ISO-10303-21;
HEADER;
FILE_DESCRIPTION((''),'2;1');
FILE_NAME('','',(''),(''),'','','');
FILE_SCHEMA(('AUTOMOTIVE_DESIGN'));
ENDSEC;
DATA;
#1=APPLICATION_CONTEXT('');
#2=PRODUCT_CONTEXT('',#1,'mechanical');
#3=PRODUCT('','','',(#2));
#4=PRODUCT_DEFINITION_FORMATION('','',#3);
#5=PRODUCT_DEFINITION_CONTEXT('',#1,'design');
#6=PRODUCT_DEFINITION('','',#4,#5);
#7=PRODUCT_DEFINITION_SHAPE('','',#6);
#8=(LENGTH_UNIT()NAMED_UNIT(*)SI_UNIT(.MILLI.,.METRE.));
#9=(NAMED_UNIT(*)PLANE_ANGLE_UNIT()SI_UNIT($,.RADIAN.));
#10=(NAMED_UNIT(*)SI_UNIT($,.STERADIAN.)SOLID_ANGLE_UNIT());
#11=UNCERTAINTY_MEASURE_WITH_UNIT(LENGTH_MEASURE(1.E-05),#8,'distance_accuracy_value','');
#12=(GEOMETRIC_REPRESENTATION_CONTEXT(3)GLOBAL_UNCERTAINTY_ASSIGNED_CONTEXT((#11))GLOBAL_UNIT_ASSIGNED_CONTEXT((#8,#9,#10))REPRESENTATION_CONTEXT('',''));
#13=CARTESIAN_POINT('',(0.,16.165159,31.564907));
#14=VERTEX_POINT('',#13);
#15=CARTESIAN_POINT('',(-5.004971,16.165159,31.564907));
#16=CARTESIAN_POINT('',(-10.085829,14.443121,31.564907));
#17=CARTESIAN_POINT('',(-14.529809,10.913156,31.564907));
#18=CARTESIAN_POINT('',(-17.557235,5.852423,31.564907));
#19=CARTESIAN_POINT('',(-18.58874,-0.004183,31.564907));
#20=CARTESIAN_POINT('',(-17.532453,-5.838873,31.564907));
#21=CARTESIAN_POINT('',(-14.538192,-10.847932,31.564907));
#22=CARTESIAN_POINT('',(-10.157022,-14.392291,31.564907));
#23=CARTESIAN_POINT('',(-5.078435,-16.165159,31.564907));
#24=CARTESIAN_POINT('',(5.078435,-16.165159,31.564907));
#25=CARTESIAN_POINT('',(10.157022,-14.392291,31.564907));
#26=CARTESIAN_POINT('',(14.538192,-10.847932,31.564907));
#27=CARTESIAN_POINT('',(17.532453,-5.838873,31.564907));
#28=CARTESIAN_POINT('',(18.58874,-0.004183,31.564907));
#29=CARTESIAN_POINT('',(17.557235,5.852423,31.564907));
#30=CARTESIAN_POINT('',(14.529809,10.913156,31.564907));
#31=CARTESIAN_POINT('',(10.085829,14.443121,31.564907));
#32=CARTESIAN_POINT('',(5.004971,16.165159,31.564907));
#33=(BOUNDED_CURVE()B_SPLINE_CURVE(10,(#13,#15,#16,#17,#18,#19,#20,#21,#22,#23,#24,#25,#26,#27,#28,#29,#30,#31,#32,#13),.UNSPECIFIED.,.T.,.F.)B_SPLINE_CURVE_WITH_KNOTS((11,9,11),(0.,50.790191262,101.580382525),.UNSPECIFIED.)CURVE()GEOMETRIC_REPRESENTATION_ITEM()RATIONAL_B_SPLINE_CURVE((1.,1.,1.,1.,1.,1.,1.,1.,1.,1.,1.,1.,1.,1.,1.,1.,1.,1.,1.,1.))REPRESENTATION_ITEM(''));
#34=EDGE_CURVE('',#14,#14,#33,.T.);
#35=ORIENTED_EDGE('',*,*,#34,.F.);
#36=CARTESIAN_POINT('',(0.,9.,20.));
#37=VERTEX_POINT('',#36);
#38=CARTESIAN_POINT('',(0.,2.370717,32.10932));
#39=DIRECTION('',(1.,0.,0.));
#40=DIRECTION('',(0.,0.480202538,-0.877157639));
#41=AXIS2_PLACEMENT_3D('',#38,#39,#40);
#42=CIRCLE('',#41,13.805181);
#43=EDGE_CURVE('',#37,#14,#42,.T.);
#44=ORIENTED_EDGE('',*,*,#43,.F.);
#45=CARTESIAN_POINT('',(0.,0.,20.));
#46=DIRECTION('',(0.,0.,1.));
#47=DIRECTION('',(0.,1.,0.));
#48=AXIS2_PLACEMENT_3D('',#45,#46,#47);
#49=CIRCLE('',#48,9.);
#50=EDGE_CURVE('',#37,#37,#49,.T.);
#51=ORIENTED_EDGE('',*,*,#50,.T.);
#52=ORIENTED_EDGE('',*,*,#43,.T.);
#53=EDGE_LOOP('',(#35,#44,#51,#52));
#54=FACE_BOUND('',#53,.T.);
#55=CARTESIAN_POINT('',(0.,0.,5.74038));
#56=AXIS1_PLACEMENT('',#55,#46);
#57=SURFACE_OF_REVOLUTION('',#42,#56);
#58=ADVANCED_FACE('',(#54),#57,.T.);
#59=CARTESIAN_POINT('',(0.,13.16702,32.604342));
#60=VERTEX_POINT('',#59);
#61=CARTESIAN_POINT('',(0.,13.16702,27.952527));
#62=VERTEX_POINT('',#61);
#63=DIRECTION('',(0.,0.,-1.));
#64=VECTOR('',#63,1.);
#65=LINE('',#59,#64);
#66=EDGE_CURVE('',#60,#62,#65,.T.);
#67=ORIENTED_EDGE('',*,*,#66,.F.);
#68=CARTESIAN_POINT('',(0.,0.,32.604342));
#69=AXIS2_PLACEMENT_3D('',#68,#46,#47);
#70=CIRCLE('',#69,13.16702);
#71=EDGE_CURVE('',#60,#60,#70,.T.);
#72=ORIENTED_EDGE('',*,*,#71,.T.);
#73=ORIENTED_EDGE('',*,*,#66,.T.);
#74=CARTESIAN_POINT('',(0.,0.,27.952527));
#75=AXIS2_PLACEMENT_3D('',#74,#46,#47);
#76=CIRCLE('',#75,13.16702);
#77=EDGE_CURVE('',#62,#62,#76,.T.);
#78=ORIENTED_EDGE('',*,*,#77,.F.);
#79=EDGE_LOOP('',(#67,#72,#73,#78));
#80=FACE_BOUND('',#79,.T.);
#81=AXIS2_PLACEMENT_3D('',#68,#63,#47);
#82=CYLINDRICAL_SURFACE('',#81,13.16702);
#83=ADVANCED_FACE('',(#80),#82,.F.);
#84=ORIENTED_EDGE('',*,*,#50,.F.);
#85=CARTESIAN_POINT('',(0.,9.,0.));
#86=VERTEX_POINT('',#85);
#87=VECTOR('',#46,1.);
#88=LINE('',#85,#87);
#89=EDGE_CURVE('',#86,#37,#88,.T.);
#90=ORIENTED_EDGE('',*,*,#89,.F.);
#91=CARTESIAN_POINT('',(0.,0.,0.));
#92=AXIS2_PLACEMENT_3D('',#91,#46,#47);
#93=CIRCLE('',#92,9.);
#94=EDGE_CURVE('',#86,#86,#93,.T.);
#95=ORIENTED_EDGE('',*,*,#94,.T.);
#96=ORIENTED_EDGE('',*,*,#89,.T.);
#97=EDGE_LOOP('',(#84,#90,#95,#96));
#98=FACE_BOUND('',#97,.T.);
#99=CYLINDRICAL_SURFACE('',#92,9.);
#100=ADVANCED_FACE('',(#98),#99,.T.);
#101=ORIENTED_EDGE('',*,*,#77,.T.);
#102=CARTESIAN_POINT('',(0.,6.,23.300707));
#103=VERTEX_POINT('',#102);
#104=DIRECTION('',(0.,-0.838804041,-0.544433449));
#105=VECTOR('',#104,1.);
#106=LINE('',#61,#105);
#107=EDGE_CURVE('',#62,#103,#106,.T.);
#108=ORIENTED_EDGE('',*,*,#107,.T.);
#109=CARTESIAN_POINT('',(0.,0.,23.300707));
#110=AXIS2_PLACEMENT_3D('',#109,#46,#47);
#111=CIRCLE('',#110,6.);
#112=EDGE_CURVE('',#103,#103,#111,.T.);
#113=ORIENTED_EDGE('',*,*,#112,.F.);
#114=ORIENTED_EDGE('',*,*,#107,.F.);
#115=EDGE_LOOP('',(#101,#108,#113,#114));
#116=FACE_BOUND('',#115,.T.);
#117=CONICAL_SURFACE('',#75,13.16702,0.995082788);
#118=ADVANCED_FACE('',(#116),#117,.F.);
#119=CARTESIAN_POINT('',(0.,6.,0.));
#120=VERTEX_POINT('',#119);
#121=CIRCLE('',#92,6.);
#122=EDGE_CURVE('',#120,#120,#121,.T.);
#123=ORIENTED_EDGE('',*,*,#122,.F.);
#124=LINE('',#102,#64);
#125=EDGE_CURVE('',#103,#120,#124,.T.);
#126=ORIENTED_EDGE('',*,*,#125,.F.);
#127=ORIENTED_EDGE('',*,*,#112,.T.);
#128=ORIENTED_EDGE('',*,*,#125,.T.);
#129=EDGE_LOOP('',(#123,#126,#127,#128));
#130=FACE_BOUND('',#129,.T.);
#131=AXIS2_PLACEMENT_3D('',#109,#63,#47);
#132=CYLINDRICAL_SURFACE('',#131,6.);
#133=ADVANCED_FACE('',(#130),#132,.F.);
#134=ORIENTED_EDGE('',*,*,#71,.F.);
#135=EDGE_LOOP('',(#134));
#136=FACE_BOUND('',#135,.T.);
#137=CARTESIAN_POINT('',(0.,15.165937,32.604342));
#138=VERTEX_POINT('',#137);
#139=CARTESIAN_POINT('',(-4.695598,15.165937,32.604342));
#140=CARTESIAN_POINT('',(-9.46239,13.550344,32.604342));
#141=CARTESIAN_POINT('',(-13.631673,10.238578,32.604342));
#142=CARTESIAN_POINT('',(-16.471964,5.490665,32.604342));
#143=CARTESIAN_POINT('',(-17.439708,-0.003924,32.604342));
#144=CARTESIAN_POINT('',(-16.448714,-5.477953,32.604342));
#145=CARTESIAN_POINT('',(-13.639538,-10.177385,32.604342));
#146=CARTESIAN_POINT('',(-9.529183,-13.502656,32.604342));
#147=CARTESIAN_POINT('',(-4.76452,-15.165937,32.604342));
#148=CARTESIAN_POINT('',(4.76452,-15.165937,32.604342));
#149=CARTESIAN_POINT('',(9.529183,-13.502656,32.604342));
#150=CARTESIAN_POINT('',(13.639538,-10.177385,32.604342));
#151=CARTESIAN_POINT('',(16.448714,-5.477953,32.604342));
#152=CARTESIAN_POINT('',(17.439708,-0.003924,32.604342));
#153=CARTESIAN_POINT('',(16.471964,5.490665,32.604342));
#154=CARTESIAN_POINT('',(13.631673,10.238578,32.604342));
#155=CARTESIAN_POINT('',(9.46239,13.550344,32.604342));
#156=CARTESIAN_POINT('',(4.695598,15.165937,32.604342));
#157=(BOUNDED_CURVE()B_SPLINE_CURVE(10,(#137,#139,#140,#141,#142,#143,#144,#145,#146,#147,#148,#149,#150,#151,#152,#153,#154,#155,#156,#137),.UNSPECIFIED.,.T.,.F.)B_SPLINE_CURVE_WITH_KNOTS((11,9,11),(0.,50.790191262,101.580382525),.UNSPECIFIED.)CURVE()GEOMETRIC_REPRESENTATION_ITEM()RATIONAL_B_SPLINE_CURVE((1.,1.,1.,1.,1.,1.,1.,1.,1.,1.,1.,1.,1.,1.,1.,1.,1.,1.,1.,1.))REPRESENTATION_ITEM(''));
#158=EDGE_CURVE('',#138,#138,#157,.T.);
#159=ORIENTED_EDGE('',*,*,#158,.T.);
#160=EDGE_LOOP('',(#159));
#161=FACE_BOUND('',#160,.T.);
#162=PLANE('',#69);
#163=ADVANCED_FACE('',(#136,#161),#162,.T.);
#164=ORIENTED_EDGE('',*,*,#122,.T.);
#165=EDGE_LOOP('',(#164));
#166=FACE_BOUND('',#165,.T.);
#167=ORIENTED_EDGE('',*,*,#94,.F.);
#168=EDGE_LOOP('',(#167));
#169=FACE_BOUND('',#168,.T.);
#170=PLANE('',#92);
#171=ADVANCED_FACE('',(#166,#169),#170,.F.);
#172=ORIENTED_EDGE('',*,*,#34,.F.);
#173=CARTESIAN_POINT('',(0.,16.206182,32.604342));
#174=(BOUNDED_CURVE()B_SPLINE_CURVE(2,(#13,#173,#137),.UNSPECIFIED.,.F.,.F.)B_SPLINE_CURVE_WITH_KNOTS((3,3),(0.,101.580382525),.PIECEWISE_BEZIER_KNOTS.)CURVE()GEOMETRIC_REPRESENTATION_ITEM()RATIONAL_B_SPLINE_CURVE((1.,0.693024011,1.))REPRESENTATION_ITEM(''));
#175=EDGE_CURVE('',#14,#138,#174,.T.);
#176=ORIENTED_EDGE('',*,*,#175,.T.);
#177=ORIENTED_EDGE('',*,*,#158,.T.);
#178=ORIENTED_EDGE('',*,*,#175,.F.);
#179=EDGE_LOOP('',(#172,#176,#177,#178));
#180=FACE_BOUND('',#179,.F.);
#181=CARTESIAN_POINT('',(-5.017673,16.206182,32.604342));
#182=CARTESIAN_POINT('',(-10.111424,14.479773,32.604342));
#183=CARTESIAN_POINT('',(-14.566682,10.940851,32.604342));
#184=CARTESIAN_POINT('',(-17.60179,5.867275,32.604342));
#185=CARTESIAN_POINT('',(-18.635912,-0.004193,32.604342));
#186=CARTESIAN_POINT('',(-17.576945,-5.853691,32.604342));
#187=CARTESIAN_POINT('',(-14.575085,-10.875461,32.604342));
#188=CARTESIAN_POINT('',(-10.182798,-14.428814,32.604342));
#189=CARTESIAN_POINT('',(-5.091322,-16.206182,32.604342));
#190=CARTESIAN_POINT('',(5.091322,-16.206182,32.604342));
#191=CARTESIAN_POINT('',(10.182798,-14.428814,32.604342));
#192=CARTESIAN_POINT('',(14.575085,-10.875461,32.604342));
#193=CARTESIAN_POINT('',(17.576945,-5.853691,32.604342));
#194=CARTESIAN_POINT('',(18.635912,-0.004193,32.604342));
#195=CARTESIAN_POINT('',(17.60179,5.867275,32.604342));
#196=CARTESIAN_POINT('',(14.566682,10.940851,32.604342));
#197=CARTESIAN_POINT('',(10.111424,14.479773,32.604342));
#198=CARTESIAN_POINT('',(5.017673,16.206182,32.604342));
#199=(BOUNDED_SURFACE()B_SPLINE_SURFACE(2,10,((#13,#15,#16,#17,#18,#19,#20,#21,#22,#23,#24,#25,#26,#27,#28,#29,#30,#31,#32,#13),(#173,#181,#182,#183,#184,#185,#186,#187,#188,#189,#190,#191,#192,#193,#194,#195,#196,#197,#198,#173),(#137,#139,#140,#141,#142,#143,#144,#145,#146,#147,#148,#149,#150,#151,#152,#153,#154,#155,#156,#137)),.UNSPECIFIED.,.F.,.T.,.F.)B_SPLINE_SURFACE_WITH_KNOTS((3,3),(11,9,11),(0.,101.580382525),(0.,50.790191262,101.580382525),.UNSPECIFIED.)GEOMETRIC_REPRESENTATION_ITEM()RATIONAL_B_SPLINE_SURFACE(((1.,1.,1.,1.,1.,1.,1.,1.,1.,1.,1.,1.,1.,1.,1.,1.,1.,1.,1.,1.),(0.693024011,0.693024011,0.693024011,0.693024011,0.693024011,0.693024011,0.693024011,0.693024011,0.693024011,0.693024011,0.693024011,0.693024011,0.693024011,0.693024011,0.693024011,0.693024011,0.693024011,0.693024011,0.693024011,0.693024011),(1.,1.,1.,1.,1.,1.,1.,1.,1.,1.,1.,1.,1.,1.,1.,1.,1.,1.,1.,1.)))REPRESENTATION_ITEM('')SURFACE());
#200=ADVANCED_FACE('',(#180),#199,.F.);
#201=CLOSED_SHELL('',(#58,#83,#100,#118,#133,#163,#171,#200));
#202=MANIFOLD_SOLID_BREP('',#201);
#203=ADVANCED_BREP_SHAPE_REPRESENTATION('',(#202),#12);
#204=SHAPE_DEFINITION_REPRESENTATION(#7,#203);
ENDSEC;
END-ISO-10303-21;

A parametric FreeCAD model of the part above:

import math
import FreeCAD as App
import Part
import Sketcher
from FreeCAD import Vector


def edges_at(feature, points):
    """Names of the edges that pass closest to the given points."""
    edges = feature.Shape.Edges
    near = lambda p: min(range(len(edges)), key=lambda i: edges[i].distToShape(Part.Vertex(*p))[0])
    return sorted({f"Edge{near(p) + 1}" for p in points})

doc = App.newDocument("Part")
body = doc.addObject("PartDesign::Body", "Body")

sketch1 = doc.addObject("Sketcher::SketchObject", "Sketch")
body.addObject(sketch1)
sketch1.AttachmentSupport = (doc.YZ_Plane, [""])
sketch1.MapMode = "FlatFace"
sketch1.addGeometry([
    Part.LineSegment(Vector(6, 0, 0), Vector(9, 0, 0)),
    Part.LineSegment(Vector(9, 0, 0), Vector(9, 20, 0)),
    Part.ArcOfCircle(Part.Circle(Vector(2.4, 32.1, 0), Vector(0, 0, 1), 13.8), math.radians(-61), math.radians(2)),
    Part.LineSegment(Vector(16.2, 32.6, 0), Vector(13.2, 32.6, 0)),
    Part.LineSegment(Vector(13.2, 32.6, 0), Vector(13.2, 28, 0)),
    Part.LineSegment(Vector(13.2, 28, 0), Vector(6, 23.3, 0)),
    Part.LineSegment(Vector(6, 23.3, 0), Vector(6, 0, 0)),
], False)
sketch1.addConstraint([
    Sketcher.Constraint("Coincident", 0, 2, 1, 1),
    Sketcher.Constraint("Coincident", 1, 2, 2, 1),
    Sketcher.Constraint("Coincident", 2, 2, 3, 1),
    Sketcher.Constraint("Coincident", 3, 2, 4, 1),
    Sketcher.Constraint("Coincident", 4, 2, 5, 1),
    Sketcher.Constraint("Coincident", 5, 2, 6, 1),
    Sketcher.Constraint("Coincident", 6, 2, 0, 1),
    Sketcher.Constraint("Horizontal", 0),
    Sketcher.Constraint("Vertical", 1),
    Sketcher.Constraint("Horizontal", 3),
    Sketcher.Constraint("Vertical", 4),
    Sketcher.Constraint("Vertical", 6),
    Sketcher.Constraint("PointOnObject", 0, 2, -1),
    Sketcher.Constraint("Equal", 0, 3),
    Sketcher.Constraint("DistanceX", 0, 1, 0, 2, 3.0),
    Sketcher.Constraint("DistanceY", 1, 1, 1, 2, 20.0),
    Sketcher.Constraint("DistanceX", -1, 1, 0, 2, 9.0),
    Sketcher.Constraint("Radius", 2, 13.805181),
    Sketcher.Constraint("Distance", 5, 8.544332),
    Sketcher.Constraint("DistanceY", 4, 2, 4, 1, 4.651815),
    Sketcher.Constraint("DistanceY", 6, 2, 6, 1, 23.300707),
    Sketcher.Constraint("DistanceY", -1, 1, 2, 3, 32.10932),
])
revolution = doc.addObject("PartDesign::Revolution", "Revolution")
body.addObject(revolution)
revolution.Profile = sketch1
revolution.ReferenceAxis = (sketch1, ["V_Axis"])
revolution.Angle = 360
doc.recompute()

fillet = doc.addObject("PartDesign::Fillet", "Fillet")
body.addObject(fillet)
fillet.Base = (revolution, edges_at(revolution, [(0, -16.167, 32.604)]))
fillet.Radius = 1

doc.recompute()
